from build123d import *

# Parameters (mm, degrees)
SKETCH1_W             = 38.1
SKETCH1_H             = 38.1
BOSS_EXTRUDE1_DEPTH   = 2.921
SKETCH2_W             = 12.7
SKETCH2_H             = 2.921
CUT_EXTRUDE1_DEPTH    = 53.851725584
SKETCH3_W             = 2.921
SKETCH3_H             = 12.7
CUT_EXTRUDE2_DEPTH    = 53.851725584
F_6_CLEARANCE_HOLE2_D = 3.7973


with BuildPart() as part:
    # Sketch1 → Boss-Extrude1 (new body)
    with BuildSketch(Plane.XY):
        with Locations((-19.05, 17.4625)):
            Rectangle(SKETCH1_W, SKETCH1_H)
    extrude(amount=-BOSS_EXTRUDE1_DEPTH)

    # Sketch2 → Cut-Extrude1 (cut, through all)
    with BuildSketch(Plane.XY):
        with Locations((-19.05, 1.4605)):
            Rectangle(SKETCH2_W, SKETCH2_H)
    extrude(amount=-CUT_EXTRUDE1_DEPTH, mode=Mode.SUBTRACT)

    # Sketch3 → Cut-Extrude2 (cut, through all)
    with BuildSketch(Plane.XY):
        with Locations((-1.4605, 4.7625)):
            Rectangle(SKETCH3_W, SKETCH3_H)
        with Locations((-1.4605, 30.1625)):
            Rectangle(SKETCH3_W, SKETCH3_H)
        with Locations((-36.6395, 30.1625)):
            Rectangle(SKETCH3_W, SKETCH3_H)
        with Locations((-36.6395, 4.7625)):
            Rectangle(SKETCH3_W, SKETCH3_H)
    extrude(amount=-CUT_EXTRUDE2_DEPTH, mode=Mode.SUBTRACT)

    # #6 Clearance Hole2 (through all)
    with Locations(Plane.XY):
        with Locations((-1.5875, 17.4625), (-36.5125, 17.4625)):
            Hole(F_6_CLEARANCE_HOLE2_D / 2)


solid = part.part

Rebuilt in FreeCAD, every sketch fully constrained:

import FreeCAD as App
import Part
import Sketcher
Q = App.Units.Quantity


def add_polygon(sketch, points):
    """Adds a closed chain of lines whose ends are joined by coincident constraints."""
    first, n = sketch.GeometryCount, len(points)
    for a, b in zip(points, points[1:] + points[:1]):
        sketch.addGeometry(Part.LineSegment(App.Vector(*a, 0), App.Vector(*b, 0)), False)
    for i in range(n):
        sketch.addConstraint(Sketcher.Constraint("Coincident", first + i, 2, first + (i + 1) % n, 1))

doc = App.newDocument("Part")
body = doc.addObject("PartDesign::Body", "Body")

# Sketch on XY plane
sketch1 = body.newObject("Sketcher::SketchObject", "Sketch")
sketch1.AttachmentSupport = (doc.getObject("XY_Plane"), [""])
sketch1.MapMode = "FlatFace"
add_polygon(sketch1, [(-38, 37), (-38, -2), (0, -2), (0, 37)])  # lines 0-3
sketch1.addConstraint([
    Sketcher.Constraint("Vertical", 0),
    Sketcher.Constraint("Horizontal", 1),
    Sketcher.Constraint("Vertical", 2),
    Sketcher.Constraint("Horizontal", 3),
    Sketcher.Constraint("PointOnObject", 1, 2, -2),
    Sketcher.Constraint("Equal", 3, 0),
    Sketcher.Constraint("DistanceX", 1, 1, 1, 2, Q("1.5 in")),
    Sketcher.Constraint("DistanceY", 0, 2, -1, 1, Q("0.0625 in")),
])
pad1 = body.newObject("PartDesign::Pad", "Pad")
pad1.Profile = sketch1
pad1.Length = Q("0.115 in")
pad1.Reversed = True

# Sketch on XY plane
sketch2 = body.newObject("Sketcher::SketchObject", "Sketch001")
sketch2.AttachmentSupport = (doc.getObject("XY_Plane"), [""])
sketch2.MapMode = "FlatFace"
add_polygon(sketch2, [(-25.4, 2.9), (-25.4, 0), (-12.7, 0), (-12.7, 2.9)])  # lines 0-3
sketch2.addConstraint([
    Sketcher.Constraint("Vertical", 0),
    Sketcher.Constraint("Horizontal", 1),
    Sketcher.Constraint("Vertical", 2),
    Sketcher.Constraint("Horizontal", 3),
    Sketcher.Constraint("PointOnObject", 0, 2, -1),
    Sketcher.Constraint("DistanceX", 1, 1, 1, 2, Q("0.5 in")),
    Sketcher.Constraint("DistanceX", 0, 2, -1, 1, Q("1 in")),
    Sketcher.Constraint("DistanceY", 0, 2, 0, 1, Q("0.115 in")),
])
pocket1 = body.newObject("PartDesign::Pocket", "Pocket")
pocket1.Profile = sketch2
pocket1.Type = "ThroughAll"

# Sketch on XY plane
sketch3 = body.newObject("Sketcher::SketchObject", "Sketch002")
sketch3.AttachmentSupport = (doc.getObject("XY_Plane"), [""])
sketch3.MapMode = "FlatFace"
add_polygon(sketch3, [(-2.9, 11.1), (-2.9, -1.6), (0, -1.6), (0, 11.1)])  # lines 0-3
add_polygon(sketch3, [(-2.9, 36.5), (-2.9, 23.8), (0, 23.8), (0, 36.5)])  # lines 4-7
add_polygon(sketch3, [(-38.1, 36.5), (-38.1, 23.8), (-35.2, 23.8), (-35.2, 36.5)])  # lines 8-11
add_polygon(sketch3, [(-38.1, 11.1), (-38.1, -1.6), (-35.2, -1.6), (-35.2, 11.1)])  # lines 12-15
sketch3.addConstraint([
    Sketcher.Constraint("Vertical", 0),
    Sketcher.Constraint("Horizontal", 1),
    Sketcher.Constraint("Vertical", 2),
    Sketcher.Constraint("Horizontal", 3),
    Sketcher.Constraint("Vertical", 4),
    Sketcher.Constraint("Horizontal", 5),
    Sketcher.Constraint("Vertical", 6),
    Sketcher.Constraint("Horizontal", 7),
    Sketcher.Constraint("Vertical", 8),
    Sketcher.Constraint("Horizontal", 9),
    Sketcher.Constraint("Vertical", 10),
    Sketcher.Constraint("Horizontal", 11),
    Sketcher.Constraint("Vertical", 12),
    Sketcher.Constraint("Horizontal", 13),
    Sketcher.Constraint("Vertical", 14),
    Sketcher.Constraint("Horizontal", 15),
    Sketcher.Constraint("PointOnObject", 1, 2, -2),
    Sketcher.Constraint("PointOnObject", 5, 2, -2),
    Sketcher.Constraint("Horizontal", 5, 2, 8, 2),
    Sketcher.Constraint("Horizontal", 7, 2, 10, 2),
    Sketcher.Constraint("Horizontal", 1, 2, 12, 2),
    Sketcher.Constraint("Horizontal", 3, 2, 14, 2),
    Sketcher.Constraint("Vertical", 3, 2, 4, 2),
    Sketcher.Constraint("Vertical", 11, 2, 12, 2),
    Sketcher.Constraint("Vertical", 10, 2, 13, 2),
    Sketcher.Constraint("Equal", 7, 9),
    Sketcher.Constraint("Equal", 2, 4),
    Sketcher.Constraint("DistanceY", 0, 2, 0, 1, Q("0.5 in")),
    Sketcher.Constraint("DistanceY", 0, 2, 4, 2, Q("1 in")),
    Sketcher.Constraint("DistanceX", 8, 2, -1, 1, Q("1.5 in")),
    Sketcher.Constraint("DistanceX", 1, 1, 1, 2, Q("0.115 in")),
    Sketcher.Constraint("DistanceY", 0, 2, -1, 1, Q("0.0625 in")),
])
pocket2 = body.newObject("PartDesign::Pocket", "Pocket001")
pocket2.Profile = sketch3
pocket2.Type = "ThroughAll"

# Sketch on XY plane
sketch4 = body.newObject("Sketcher::SketchObject", "Sketch003")
sketch4.AttachmentSupport = (doc.getObject("XY_Plane"), [""])
sketch4.MapMode = "FlatFace"
sketch4.addGeometry([
    Part.Circle(App.Vector(-1.6, 17.5, 0), App.Vector(0, 0, 1), 1.9),
    Part.Circle(App.Vector(-36.5, 17.5, 0), App.Vector(0, 0, 1), 1.9),
], False)
sketch4.addConstraint([
    Sketcher.Constraint("Equal", 0, 1),
    Sketcher.Constraint("Horizontal", 0, 3, 1, 3),
    Sketcher.Constraint("Diameter", 0, Q("0.1495 in")),
    Sketcher.Constraint("DistanceX", 0, 3, -1, 1, Q("0.0625 in")),
    Sketcher.Constraint("DistanceY", -1, 1, 0, 3, Q("0.6875 in")),
    Sketcher.Constraint("DistanceX", 1, 3, -1, 1, Q("1.4375 in")),
])
doc.recompute()
hole = body.newObject("PartDesign::Hole", "Hole")
hole.Profile = sketch4
hole.ThreadType = "None"
hole.Diameter = Q("0.1495 in")
hole.DepthType = "ThroughAll"

doc.recompute()
